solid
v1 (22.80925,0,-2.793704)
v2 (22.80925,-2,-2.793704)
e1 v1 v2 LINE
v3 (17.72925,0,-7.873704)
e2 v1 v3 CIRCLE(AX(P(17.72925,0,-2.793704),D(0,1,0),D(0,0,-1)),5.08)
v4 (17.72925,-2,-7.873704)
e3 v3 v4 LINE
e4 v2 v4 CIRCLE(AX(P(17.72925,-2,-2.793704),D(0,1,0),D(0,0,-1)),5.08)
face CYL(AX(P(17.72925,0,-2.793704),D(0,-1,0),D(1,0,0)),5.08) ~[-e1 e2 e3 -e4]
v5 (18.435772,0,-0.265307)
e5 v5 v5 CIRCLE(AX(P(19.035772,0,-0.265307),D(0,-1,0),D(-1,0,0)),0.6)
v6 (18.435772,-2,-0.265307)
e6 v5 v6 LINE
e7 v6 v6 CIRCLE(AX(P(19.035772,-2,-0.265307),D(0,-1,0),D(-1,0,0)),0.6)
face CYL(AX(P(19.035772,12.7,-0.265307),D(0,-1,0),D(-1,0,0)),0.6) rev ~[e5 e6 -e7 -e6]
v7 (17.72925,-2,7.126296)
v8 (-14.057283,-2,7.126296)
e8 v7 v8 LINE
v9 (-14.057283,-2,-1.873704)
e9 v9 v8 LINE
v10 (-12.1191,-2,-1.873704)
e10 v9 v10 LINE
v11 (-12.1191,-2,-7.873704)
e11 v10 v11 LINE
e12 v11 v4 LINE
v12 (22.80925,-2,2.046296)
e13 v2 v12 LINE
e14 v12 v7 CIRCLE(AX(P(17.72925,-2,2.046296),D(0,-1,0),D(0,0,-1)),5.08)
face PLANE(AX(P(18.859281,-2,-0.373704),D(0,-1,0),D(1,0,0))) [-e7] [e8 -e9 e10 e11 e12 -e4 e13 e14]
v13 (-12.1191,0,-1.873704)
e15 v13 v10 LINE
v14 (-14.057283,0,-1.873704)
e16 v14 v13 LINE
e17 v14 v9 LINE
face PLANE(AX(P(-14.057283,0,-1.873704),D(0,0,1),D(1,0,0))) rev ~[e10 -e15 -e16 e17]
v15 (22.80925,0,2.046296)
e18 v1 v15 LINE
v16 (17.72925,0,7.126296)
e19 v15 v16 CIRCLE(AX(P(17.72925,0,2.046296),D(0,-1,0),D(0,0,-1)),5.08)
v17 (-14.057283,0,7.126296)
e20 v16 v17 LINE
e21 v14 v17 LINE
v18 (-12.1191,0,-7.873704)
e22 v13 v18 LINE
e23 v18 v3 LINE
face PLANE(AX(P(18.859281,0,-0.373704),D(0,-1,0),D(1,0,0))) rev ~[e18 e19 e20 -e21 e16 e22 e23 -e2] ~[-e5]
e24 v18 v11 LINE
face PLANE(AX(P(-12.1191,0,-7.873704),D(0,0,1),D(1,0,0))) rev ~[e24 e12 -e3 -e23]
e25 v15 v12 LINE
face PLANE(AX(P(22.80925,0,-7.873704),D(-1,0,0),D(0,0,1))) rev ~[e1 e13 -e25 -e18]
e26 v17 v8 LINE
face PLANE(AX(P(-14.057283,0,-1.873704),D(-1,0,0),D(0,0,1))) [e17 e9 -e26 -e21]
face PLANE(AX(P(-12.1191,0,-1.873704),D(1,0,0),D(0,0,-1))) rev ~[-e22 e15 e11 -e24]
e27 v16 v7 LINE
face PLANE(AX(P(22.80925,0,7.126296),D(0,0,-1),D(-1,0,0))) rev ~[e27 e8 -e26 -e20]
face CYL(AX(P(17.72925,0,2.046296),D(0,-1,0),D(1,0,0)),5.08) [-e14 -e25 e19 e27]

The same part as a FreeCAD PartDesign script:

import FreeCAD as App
import Part
import Sketcher
Q = App.Units.Quantity


def edges_at(feature, points):
    """Names of the edges that pass closest to the given points."""
    edges = feature.Shape.Edges
    near = lambda p: min(range(len(edges)), key=lambda i: edges[i].distToShape(Part.Vertex(*p))[0])
    return sorted({f"Edge{near(p) + 1}" for p in points})


def add_polygon(sketch, points):
    """Adds a closed chain of lines whose ends are joined by coincident constraints."""
    first, n = sketch.GeometryCount, len(points)
    for a, b in zip(points, points[1:] + points[:1]):
        sketch.addGeometry(Part.LineSegment(App.Vector(*a, 0), App.Vector(*b, 0)), False)
    for i in range(n):
        sketch.addConstraint(Sketcher.Constraint("Coincident", first + i, 2, first + (i + 1) % n, 1))

doc = App.newDocument("Part")
body = doc.addObject("PartDesign::Body", "Body")

sketch1 = doc.addObject("Sketcher::SketchObject", "Sketch")
body.addObject(sketch1)
sketch1.AttachmentSupport = (doc.XZ_Plane, [""])
sketch1.MapMode = "FlatFace"
add_polygon(sketch1, [(22.8, -7.9), (22.8, 7.1), (-14.1, 7.1), (-14.1, -1.9), (-12.1, -1.9), (-12.1, -7.9)])
sketch1.addConstraint([
    Sketcher.Constraint("Vertical", 0),
    Sketcher.Constraint("Horizontal", 1),
    Sketcher.Constraint("Vertical", 2),
    Sketcher.Constraint("Horizontal", 3),
    Sketcher.Constraint("Vertical", 4),
    Sketcher.Constraint("Horizontal", 5),
    Sketcher.Constraint("DistanceY", 0, 1, 0, 2, Q("15 mm")),
    Sketcher.Constraint("DistanceY", 2, 2, 2, 1, Q("9 mm")),
    Sketcher.Constraint("DistanceX", 5, 1, 5, 2, Q("34.92835 mm")),
    Sketcher.Constraint("DistanceX", 3, 2, -1, 1, Q("12.1191 mm")),
    Sketcher.Constraint("DistanceX", 1, 2, 1, 1, Q("36.866533 mm")),
    Sketcher.Constraint("DistanceY", -1, 1, 0, 2, Q("7.126296 mm")),
])
pad1 = doc.addObject("PartDesign::Pad", "Pad")
body.addObject(pad1)
pad1.Profile = sketch1
pad1.Length = 2
doc.recompute()

fillet = doc.addObject("PartDesign::Fillet", "Fillet")
body.addObject(fillet)
fillet.Base = (pad1, edges_at(pad1, [(22.809, -1, -7.874), (22.809, -1, 7.126)]))
fillet.Radius = 5.08

sketch2 = doc.addObject("Sketcher::SketchObject", "Sketch001")
body.addObject(sketch2)
sketch2.AttachmentSupport = (doc.XZ_Plane, [""])
sketch2.MapMode = "FlatFace"
sketch2.addGeometry(Part.Circle(App.Vector(19, -0.3, 0), App.Vector(0, 0, 1), 0.6), False)
sketch2.addConstraint([
    Sketcher.Constraint("Diameter", 0, Q("1.2 mm")),
    Sketcher.Constraint("DistanceX", -1, 1, 0, 3, Q("19.035772 mm")),
    Sketcher.Constraint("DistanceY", 0, 3, -1, 1, Q("0.265307 mm")),
])
doc.recompute()
hole = doc.addObject("PartDesign::Hole", "Hole")
body.addObject(hole)
hole.Profile = sketch2
hole.ThreadType = "None"
hole.Diameter = 1.2
hole.DepthType = "Dimension"
hole.Depth = 12.7
hole.DrillPoint = "Angled"
hole.DrillPointAngle = 118
hole.Reversed = True

doc.recompute()
